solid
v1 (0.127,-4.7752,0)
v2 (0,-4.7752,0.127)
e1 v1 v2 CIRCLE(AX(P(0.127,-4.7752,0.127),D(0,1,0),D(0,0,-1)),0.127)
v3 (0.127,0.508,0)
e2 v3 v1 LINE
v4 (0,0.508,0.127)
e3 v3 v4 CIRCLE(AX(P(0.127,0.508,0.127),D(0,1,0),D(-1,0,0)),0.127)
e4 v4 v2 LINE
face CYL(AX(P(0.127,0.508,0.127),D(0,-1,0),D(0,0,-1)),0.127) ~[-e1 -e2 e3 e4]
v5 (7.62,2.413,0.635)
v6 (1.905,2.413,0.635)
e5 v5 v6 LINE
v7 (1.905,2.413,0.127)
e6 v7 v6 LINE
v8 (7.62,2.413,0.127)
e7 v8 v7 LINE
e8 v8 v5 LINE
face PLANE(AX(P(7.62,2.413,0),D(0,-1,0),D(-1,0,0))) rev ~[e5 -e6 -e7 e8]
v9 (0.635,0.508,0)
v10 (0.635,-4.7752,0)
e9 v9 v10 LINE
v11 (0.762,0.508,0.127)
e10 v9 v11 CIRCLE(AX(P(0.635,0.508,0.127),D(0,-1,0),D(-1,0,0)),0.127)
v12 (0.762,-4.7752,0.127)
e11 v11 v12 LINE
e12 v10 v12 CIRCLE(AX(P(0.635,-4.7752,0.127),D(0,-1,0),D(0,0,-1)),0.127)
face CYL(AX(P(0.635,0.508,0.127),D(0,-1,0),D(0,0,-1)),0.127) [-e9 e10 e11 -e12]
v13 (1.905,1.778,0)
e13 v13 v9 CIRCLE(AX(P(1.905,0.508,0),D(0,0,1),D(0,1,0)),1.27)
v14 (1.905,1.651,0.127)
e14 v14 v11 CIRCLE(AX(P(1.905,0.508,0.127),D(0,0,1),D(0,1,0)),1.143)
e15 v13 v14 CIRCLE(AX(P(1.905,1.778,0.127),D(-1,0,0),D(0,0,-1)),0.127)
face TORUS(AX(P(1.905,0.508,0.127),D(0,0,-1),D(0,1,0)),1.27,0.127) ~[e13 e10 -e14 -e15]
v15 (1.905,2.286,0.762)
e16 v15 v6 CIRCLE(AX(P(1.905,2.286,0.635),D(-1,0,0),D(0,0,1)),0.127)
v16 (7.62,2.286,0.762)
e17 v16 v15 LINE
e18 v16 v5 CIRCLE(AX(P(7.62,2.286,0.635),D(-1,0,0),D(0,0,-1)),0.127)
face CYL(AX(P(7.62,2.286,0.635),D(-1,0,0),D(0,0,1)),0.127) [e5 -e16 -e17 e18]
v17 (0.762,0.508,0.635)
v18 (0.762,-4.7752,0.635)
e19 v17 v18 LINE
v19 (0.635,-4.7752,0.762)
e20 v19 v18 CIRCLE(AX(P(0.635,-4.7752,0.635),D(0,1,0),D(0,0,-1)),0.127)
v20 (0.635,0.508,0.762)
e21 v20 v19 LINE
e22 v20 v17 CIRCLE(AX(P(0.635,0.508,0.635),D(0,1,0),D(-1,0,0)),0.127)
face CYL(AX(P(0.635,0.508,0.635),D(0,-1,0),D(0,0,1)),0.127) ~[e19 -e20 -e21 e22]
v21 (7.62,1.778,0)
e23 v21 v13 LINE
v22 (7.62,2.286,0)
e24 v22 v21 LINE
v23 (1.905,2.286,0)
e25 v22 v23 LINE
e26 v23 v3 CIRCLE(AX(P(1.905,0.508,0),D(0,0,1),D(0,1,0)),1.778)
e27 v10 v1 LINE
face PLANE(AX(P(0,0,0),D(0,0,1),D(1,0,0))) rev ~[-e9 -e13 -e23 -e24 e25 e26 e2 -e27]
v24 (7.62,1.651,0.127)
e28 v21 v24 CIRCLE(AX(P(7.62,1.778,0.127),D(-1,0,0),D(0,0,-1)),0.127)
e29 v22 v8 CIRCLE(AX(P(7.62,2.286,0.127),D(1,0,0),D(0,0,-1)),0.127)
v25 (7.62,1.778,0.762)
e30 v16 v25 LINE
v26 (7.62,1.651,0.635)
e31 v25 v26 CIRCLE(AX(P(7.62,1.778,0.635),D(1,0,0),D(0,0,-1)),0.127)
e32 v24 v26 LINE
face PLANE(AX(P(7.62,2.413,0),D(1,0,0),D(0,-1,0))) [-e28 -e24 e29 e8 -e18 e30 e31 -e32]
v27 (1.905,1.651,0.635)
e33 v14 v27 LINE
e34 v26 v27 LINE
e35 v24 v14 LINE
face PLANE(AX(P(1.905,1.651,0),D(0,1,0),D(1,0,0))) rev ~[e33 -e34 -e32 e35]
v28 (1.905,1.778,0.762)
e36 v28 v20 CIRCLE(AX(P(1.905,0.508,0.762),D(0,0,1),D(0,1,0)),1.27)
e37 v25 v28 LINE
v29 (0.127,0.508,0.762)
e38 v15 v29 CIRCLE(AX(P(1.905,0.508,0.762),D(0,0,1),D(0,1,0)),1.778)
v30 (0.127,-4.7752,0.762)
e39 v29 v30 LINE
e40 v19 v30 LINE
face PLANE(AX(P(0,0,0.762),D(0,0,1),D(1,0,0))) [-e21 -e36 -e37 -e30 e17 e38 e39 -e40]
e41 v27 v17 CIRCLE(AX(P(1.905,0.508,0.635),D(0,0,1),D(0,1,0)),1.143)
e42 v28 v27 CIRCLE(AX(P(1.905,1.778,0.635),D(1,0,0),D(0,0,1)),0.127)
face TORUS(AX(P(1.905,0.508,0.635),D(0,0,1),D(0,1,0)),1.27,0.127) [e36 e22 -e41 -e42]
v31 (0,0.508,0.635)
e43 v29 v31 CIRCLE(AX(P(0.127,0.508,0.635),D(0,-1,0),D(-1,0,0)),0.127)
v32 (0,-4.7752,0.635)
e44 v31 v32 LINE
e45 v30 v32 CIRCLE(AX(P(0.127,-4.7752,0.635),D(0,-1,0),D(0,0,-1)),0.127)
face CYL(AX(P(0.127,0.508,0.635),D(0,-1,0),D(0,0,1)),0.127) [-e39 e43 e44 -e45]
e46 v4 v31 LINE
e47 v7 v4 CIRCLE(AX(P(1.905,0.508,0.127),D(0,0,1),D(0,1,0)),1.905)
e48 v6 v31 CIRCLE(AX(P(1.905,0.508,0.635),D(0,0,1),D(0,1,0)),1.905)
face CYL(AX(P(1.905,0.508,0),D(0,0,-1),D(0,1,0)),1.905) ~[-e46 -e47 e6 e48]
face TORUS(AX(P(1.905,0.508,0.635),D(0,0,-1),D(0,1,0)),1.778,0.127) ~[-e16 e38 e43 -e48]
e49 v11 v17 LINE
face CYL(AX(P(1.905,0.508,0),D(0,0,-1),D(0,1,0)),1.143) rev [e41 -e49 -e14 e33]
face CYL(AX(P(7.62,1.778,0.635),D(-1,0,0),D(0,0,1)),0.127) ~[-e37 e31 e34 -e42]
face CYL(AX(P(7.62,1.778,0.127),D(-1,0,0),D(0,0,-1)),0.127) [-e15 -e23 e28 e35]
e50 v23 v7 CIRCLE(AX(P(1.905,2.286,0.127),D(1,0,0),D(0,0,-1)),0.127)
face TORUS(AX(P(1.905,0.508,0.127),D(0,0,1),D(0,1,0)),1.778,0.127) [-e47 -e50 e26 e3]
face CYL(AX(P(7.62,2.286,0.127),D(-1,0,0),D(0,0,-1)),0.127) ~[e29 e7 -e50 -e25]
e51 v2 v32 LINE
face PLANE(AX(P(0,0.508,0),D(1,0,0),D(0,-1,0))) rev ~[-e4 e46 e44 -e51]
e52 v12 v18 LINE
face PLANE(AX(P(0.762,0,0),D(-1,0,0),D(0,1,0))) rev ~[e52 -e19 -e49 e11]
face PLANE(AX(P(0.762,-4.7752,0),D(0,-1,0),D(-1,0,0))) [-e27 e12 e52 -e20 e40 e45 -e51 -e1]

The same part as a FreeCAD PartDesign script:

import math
import FreeCAD as App
import Part
import Sketcher
Q = App.Units.Quantity


def edges_at(feature, points):
    """Names of the edges that pass closest to the given points."""
    edges = feature.Shape.Edges
    near = lambda p: min(range(len(edges)), key=lambda i: edges[i].distToShape(Part.Vertex(*p))[0])
    return sorted({f"Edge{near(p) + 1}" for p in points})

doc = App.newDocument("Part")
params = doc.addObject("Spreadsheet::Sheet", "Params")
for row, (alias, value) in enumerate([
    ("sketch1_radius", "0.075 in"),
    ("sketch1_radius2", "0.045 in"),
    ("pad1_length", "0.03 in"),
    ("fillet_radius", "0.005 in"),
], start=1):
    params.set(f"A{row}", alias)
    params.set(f"B{row}", "=" + value)
    params.setAlias(f"B{row}", alias)

body = doc.addObject("PartDesign::Body", "Body")

# Sketch on XY plane
sketch1 = body.newObject("Sketcher::SketchObject", "Sketch")
sketch1.AttachmentSupport = (doc.getObject("XY_Plane"), [""])
sketch1.MapMode = "FlatFace"
sketch1.addGeometry([
    Part.LineSegment(App.Vector(7.6, 1.7, 0), App.Vector(7.6, 2.4, 0)),  # 0
    Part.LineSegment(App.Vector(7.6, 2.4, 0), App.Vector(1.9, 2.4, 0)),  # 1
    Part.ArcOfCircle(Part.Circle(App.Vector(1.9, 0.5, 0), App.Vector(0, 0, 1), 1.9), math.radians(90), math.radians(180)),  # 2
    Part.LineSegment(App.Vector(0, 0.5, 0), App.Vector(0, -4.8, 0)),  # 3
    Part.LineSegment(App.Vector(0, -4.8, 0), App.Vector(0.8, -4.8, 0)),  # 4
    Part.LineSegment(App.Vector(0.8, -4.8, 0), App.Vector(0.8, 0.5, 0)),  # 5
    Part.ArcOfCircle(Part.Circle(App.Vector(1.9, 0.5, 0), App.Vector(0, 0, 1), 1.1), math.radians(90), math.radians(180)),  # 6
    Part.LineSegment(App.Vector(1.9, 1.7, 0), App.Vector(7.6, 1.7, 0)),  # 7
], False)
sketch1.addConstraint([
    Sketcher.Constraint("Coincident", 0, 2, 1, 1),
    Sketcher.Constraint("Tangent", 1, 2, 2, 1),
    Sketcher.Constraint("Tangent", 2, 2, 3, 1),
    Sketcher.Constraint("Coincident", 3, 2, 4, 1),
    Sketcher.Constraint("Coincident", 4, 2, 5, 1),
    Sketcher.Constraint("Tangent", 5, 2, 6, 2),
    Sketcher.Constraint("Tangent", 6, 1, 7, 1),
    Sketcher.Constraint("Coincident", 7, 2, 0, 1),
    Sketcher.Constraint("Vertical", 0),
    Sketcher.Constraint("Horizontal", 1),
    Sketcher.Constraint("Vertical", 3),
    Sketcher.Constraint("Horizontal", 4),
    Sketcher.Constraint("Vertical", 5),
    Sketcher.Constraint("Horizontal", 7),
    Sketcher.Constraint("Coincident", 6, 3, 2, 3),
    Sketcher.Constraint("PointOnObject", 2, 2, -2),
    Sketcher.Constraint("Radius", 2, Q("0.075 in")),
    Sketcher.Constraint("Radius", 6, Q("0.045 in")),
    Sketcher.Constraint("DistanceX", -1, 1, 0, 2, Q("0.3 in")),
    Sketcher.Constraint("DistanceY", -1, 1, 0, 2, Q("0.095 in")),
    Sketcher.Constraint("DistanceY", 3, 2, -1, 1, Q("0.188 in")),
])
sketch1.setExpression("Constraints[16]", "Params.sketch1_radius")
sketch1.setExpression("Constraints[17]", "Params.sketch1_radius2")
pad1 = body.newObject("PartDesign::Pad", "Pad")
pad1.Profile = sketch1
pad1.setExpression("Length", "Params.pad1_length")
doc.recompute()

fillet = body.newObject("PartDesign::Fillet", "Fillet")
fillet.Base = (pad1, edges_at(pad1, [
    (1.097, 1.316, 0.762),
    (4.763, 1.651, 0.762),
    (0.558, 1.855, 0.762),
    (4.763, 2.413, 0.762),
    (0.558, 1.855, 0),
    (4.763, 2.413, 0),
    (1.097, 1.316, 0),
    (4.763, 1.651, 0),
]))
fillet.setExpression("Radius", "Params.fillet_radius")

doc.recompute()
